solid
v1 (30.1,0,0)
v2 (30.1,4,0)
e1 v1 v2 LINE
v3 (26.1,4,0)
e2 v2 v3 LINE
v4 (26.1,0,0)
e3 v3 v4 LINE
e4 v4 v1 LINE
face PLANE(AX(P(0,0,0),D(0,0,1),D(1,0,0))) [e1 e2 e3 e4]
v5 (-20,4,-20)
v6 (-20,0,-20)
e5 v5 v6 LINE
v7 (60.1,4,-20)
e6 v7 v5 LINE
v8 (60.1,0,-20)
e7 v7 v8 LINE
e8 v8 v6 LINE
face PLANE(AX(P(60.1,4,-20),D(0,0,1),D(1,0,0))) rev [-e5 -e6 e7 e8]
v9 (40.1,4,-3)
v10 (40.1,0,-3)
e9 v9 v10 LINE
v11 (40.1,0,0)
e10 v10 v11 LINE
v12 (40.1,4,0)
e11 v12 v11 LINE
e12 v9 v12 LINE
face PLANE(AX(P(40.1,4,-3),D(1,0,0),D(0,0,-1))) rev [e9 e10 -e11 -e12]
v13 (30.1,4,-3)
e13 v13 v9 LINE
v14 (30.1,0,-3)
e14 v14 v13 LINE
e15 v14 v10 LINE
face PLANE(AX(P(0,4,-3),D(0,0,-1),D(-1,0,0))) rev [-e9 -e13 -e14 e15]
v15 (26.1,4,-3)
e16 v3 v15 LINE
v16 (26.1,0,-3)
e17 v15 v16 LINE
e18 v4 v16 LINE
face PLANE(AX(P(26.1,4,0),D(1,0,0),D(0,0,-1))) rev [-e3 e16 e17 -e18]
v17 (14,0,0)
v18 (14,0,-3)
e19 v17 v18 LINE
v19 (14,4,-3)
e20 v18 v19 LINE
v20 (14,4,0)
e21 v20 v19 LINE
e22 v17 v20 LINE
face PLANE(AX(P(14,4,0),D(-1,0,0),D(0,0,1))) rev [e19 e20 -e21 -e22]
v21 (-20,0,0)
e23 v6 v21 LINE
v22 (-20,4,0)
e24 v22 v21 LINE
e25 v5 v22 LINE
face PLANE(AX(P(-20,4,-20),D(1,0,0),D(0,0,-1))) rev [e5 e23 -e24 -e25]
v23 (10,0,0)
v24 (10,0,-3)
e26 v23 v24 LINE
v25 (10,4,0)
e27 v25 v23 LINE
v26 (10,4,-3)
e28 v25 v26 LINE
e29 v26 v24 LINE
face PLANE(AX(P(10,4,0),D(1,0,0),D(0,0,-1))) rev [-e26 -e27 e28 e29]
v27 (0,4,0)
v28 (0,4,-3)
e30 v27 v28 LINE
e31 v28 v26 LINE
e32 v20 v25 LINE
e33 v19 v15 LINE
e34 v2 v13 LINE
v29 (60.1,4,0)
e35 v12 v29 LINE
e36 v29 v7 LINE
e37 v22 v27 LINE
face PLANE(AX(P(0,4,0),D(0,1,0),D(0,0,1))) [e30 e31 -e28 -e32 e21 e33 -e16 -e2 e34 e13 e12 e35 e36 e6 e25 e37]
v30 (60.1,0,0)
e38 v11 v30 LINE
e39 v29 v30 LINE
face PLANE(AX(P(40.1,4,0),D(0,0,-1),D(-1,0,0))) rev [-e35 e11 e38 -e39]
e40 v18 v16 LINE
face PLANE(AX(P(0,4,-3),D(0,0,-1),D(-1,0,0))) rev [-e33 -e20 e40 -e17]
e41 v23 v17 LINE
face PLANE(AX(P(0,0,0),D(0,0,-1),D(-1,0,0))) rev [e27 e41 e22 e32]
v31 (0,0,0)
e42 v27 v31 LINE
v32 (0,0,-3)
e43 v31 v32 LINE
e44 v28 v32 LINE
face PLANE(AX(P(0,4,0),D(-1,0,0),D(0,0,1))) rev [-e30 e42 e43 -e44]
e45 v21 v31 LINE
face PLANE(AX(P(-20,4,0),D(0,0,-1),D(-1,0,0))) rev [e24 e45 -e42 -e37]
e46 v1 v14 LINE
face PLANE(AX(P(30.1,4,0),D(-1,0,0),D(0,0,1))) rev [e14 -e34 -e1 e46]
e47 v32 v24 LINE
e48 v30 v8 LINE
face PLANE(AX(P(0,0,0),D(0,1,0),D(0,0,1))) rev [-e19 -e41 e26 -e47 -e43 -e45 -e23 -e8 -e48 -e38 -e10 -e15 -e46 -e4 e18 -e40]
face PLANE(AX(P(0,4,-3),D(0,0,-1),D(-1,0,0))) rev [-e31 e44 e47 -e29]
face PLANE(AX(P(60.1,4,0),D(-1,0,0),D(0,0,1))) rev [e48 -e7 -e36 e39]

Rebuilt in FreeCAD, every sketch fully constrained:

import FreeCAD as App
import Part
import Sketcher
Q = App.Units.Quantity


def add_polygon(sketch, points):
    """Adds a closed chain of lines whose ends are joined by coincident constraints."""
    first, n = sketch.GeometryCount, len(points)
    for a, b in zip(points, points[1:] + points[:1]):
        sketch.addGeometry(Part.LineSegment(App.Vector(*a, 0), App.Vector(*b, 0)), False)
    for i in range(n):
        sketch.addConstraint(Sketcher.Constraint("Coincident", first + i, 2, first + (i + 1) % n, 1))

doc = App.newDocument("Part")
body = doc.addObject("PartDesign::Body", "Body")

# Sketch on XZ plane
sketch1 = doc.addObject("Sketcher::SketchObject", "Sketch")
body.addObject(sketch1)
sketch1.AttachmentSupport = (doc.XZ_Plane, [""])
sketch1.MapMode = "FlatFace"
add_polygon(sketch1, [(0, 0), (0, -3), (40.1, -3), (40.1, 0), (60.1, 0), (60.1, -20), (-20, -20), (-20, 0)])  # lines 0-7
sketch1.addConstraint([
    Sketcher.Constraint("Vertical", 0),
    Sketcher.Constraint("Horizontal", 1),
    Sketcher.Constraint("Vertical", 2),
    Sketcher.Constraint("Horizontal", 3),
    Sketcher.Constraint("Vertical", 4),
    Sketcher.Constraint("Horizontal", 5),
    Sketcher.Constraint("Vertical", 6),
    Sketcher.Constraint("Horizontal", 7),
    Sketcher.Constraint("Coincident", 7, 2, -1, 1),
    Sketcher.Constraint("PointOnObject", 2, 2, -1),
    Sketcher.Constraint("Equal", 3, 7),
    Sketcher.Constraint("Equal", 7, 4),
    Sketcher.Constraint("DistanceX", 3, 1, 3, 2, Q("20 mm")),
    Sketcher.Constraint("DistanceY", 0, 2, 0, 1, Q("3 mm")),
    Sketcher.Constraint("DistanceX", 1, 1, 1, 2, Q("40.1 mm")),
])
pad1 = doc.addObject("PartDesign::Pad", "Pad")
body.addObject(pad1)
pad1.Profile = sketch1
pad1.Length = 4
pad1.Reversed = True

# Sketch on XY plane
sketch2 = doc.addObject("Sketcher::SketchObject", "Sketch001")
body.addObject(sketch2)
sketch2.AttachmentSupport = (doc.XY_Plane, [""])
sketch2.MapMode = "FlatFace"
sketch2.AttachmentOffset = App.Placement(App.Vector(0, 0, -3), App.Rotation())
add_polygon(sketch2, [(26.1, 4), (26.1, 0), (30.1, 0), (30.1, 4)])  # lines 0-3
add_polygon(sketch2, [(10, 4), (10, 0), (14, 0), (14, 4)])  # lines 4-7
sketch2.addConstraint([
    Sketcher.Constraint("Vertical", 0),
    Sketcher.Constraint("Horizontal", 1),
    Sketcher.Constraint("Vertical", 2),
    Sketcher.Constraint("Horizontal", 3),
    Sketcher.Constraint("Vertical", 4),
    Sketcher.Constraint("Horizontal", 5),
    Sketcher.Constraint("Vertical", 6),
    Sketcher.Constraint("Horizontal", 7),
    Sketcher.Constraint("PointOnObject", 0, 2, -1),
    Sketcher.Constraint("PointOnObject", 4, 2, -1),
    Sketcher.Constraint("Horizontal", 3, 2, 6, 2),
    Sketcher.Constraint("Equal", 3, 5),
    Sketcher.Constraint("Equal", 7, 0),
    Sketcher.Constraint("DistanceX", 1, 1, 1, 2, Q("4 mm")),
    Sketcher.Constraint("DistanceX", -1, 1, 4, 2, Q("10 mm")),
    Sketcher.Constraint("DistanceX", -1, 1, 0, 2, Q("26.1 mm")),
])
pad2 = doc.addObject("PartDesign::Pad", "Pad001")
body.addObject(pad2)
pad2.Profile = sketch2
pad2.Length = 3

doc.recompute()
